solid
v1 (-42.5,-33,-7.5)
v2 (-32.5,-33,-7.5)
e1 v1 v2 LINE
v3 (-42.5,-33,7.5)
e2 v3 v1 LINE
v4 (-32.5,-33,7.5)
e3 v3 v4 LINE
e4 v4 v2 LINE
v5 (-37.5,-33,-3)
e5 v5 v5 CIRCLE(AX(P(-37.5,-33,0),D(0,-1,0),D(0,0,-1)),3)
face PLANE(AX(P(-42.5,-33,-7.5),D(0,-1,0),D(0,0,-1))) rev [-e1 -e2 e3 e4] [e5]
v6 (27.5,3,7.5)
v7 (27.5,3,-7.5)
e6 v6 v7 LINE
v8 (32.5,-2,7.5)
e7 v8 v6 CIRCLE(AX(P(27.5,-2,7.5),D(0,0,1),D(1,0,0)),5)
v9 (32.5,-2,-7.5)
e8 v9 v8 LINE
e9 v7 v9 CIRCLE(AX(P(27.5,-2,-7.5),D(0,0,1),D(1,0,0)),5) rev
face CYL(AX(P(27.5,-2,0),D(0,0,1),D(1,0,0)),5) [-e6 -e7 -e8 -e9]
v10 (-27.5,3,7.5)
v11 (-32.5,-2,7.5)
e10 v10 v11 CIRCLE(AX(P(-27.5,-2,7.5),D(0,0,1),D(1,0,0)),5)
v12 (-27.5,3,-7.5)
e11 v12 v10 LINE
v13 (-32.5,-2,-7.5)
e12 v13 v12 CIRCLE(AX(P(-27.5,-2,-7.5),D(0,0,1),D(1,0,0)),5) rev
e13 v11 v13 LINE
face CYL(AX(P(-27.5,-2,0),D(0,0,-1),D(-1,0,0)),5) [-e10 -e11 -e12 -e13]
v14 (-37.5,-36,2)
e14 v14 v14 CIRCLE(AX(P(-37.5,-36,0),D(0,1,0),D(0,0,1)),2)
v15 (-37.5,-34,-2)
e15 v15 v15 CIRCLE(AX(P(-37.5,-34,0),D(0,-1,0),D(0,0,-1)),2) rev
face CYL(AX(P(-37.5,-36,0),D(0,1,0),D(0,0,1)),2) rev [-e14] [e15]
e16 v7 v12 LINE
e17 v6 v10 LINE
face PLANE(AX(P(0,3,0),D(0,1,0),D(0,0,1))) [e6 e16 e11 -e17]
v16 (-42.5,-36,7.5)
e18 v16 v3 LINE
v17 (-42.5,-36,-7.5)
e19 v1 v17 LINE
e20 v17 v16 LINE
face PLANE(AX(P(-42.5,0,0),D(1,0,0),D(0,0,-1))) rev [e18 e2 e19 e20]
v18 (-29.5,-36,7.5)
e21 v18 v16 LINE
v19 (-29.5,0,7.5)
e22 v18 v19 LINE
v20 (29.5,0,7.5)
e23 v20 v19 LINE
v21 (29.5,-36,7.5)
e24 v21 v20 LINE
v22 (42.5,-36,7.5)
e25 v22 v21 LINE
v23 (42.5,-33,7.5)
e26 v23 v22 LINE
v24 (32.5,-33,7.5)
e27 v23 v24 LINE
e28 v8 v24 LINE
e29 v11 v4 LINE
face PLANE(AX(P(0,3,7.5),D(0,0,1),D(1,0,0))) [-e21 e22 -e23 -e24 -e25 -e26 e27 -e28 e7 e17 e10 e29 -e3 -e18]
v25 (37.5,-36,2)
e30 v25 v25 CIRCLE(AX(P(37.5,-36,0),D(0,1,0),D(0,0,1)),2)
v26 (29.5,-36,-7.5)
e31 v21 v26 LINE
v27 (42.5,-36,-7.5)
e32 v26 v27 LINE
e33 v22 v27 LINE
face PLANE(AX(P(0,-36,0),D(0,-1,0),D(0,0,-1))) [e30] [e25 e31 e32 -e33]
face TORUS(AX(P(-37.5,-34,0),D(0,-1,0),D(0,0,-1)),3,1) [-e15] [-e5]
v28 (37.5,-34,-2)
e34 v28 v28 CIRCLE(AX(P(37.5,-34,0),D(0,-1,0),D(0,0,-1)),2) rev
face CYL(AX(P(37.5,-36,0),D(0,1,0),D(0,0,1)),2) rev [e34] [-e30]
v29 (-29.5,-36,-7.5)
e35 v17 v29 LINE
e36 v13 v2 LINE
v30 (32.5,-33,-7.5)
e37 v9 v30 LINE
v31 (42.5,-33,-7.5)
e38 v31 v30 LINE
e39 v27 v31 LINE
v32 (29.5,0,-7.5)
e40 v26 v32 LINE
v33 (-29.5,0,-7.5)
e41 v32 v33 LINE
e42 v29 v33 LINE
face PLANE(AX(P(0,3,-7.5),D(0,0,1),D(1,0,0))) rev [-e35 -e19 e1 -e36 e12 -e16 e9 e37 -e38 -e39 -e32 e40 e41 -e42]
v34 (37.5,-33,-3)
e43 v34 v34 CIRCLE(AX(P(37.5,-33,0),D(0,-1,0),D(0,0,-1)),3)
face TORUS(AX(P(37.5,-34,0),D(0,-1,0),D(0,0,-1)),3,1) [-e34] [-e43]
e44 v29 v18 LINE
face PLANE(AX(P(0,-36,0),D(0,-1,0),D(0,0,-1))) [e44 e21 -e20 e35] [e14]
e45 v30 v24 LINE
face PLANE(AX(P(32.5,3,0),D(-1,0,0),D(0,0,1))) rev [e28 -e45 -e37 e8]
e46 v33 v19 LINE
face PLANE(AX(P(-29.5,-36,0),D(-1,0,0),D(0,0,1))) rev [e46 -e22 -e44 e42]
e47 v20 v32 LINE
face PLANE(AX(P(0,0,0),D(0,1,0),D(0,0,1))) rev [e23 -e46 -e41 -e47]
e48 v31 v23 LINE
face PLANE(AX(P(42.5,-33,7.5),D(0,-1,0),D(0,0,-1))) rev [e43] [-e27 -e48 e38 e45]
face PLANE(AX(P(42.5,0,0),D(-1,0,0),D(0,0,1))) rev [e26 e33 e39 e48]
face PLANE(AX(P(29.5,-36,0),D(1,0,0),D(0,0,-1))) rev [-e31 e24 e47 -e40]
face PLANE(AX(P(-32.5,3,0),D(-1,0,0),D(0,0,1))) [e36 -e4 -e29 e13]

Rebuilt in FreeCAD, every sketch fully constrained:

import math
import FreeCAD as App
import Part
import Sketcher
from FreeCAD import Vector


def edges_at(feature, points):
    """Names of the edges that pass closest to the given points."""
    edges = feature.Shape.Edges
    near = lambda p: min(range(len(edges)), key=lambda i: edges[i].distToShape(Part.Vertex(*p))[0])
    return sorted({f"Edge{near(p) + 1}" for p in points})

doc = App.newDocument("Part")
body = doc.addObject("PartDesign::Body", "Body")

# Sketch on XZ plane
sketch1 = doc.addObject("Sketcher::SketchObject", "Sketch")
body.addObject(sketch1)
sketch1.AttachmentSupport = (doc.XZ_Plane, [""])
sketch1.MapMode = "FlatFace"
sketch1.addGeometry(Part.LineSegment(Vector(-32, 8, 0), Vector(32, 8, 0)), False)
sketch1.addGeometry(Part.LineSegment(Vector(32, 8, 0), Vector(32, -8, 0)), False)
sketch1.addGeometry(Part.LineSegment(Vector(32, -8, 0), Vector(-32, -8, 0)), False)
sketch1.addGeometry(Part.LineSegment(Vector(-32, -8, 0), Vector(-32, 8, 0)), False)
sketch1.addConstraint(Sketcher.Constraint("Coincident", 0, 2, 1, 1))
sketch1.addConstraint(Sketcher.Constraint("Coincident", 1, 2, 2, 1))
sketch1.addConstraint(Sketcher.Constraint("Coincident", 2, 2, 3, 1))
sketch1.addConstraint(Sketcher.Constraint("Coincident", 3, 2, 0, 1))
sketch1.addConstraint(Sketcher.Constraint("Horizontal", 0))
sketch1.addConstraint(Sketcher.Constraint("Vertical", 1))
sketch1.addConstraint(Sketcher.Constraint("Horizontal", 2))
sketch1.addConstraint(Sketcher.Constraint("Vertical", 3))
sketch1.addConstraint(Sketcher.Constraint("Symmetric", 0, 2, 2, 2, -1, 1))
sketch1.addConstraint(Sketcher.Constraint("DistanceX", 0, 1, 0, 2, 65.0))
sketch1.addConstraint(Sketcher.Constraint("DistanceY", 1, 2, 1, 1, 15.0))
pad1 = doc.addObject("PartDesign::Pad", "Pad")
body.addObject(pad1)
pad1.Profile = sketch1
pad1.Length = 3
pad1.Reversed = True

# Sketch on XZ plane
sketch2 = doc.addObject("Sketcher::SketchObject", "Sketch001")
body.addObject(sketch2)
sketch2.AttachmentSupport = (doc.XZ_Plane, [""])
sketch2.MapMode = "FlatFace"
sketch2.addGeometry(Part.LineSegment(Vector(-29.5, 7.5, 0), Vector(-32.5, 7.5, 0)), False)
sketch2.addGeometry(Part.LineSegment(Vector(-32.5, 7.5, 0), Vector(-32.5, -7.5, 0)), False)
sketch2.addGeometry(Part.LineSegment(Vector(-32.5, -7.5, 0), Vector(-29.5, -7.5, 0)), False)
sketch2.addGeometry(Part.LineSegment(Vector(-29.5, -7.5, 0), Vector(-29.5, 7.5, 0)), False)
sketch2.addGeometry(Part.LineSegment(Vector(29.5, 7.5, 0), Vector(29.5, -7.5, 0)), False)
sketch2.addGeometry(Part.LineSegment(Vector(29.5, -7.5, 0), Vector(32.5, -7.5, 0)), False)
sketch2.addGeometry(Part.LineSegment(Vector(32.5, -7.5, 0), Vector(32.5, 7.5, 0)), False)
sketch2.addGeometry(Part.LineSegment(Vector(32.5, 7.5, 0), Vector(29.5, 7.5, 0)), False)
sketch2.addConstraint(Sketcher.Constraint("Coincident", 0, 2, 1, 1))
sketch2.addConstraint(Sketcher.Constraint("Coincident", 1, 2, 2, 1))
sketch2.addConstraint(Sketcher.Constraint("Coincident", 2, 2, 3, 1))
sketch2.addConstraint(Sketcher.Constraint("Coincident", 3, 2, 0, 1))
sketch2.addConstraint(Sketcher.Constraint("Coincident", 4, 2, 5, 1))
sketch2.addConstraint(Sketcher.Constraint("Coincident", 5, 2, 6, 1))
sketch2.addConstraint(Sketcher.Constraint("Coincident", 6, 2, 7, 1))
sketch2.addConstraint(Sketcher.Constraint("Coincident", 7, 2, 4, 1))
sketch2.addConstraint(Sketcher.Constraint("Horizontal", 0))
sketch2.addConstraint(Sketcher.Constraint("Vertical", 1))
sketch2.addConstraint(Sketcher.Constraint("Horizontal", 2))
sketch2.addConstraint(Sketcher.Constraint("Vertical", 3))
sketch2.addConstraint(Sketcher.Constraint("Vertical", 4))
sketch2.addConstraint(Sketcher.Constraint("Horizontal", 5))
sketch2.addConstraint(Sketcher.Constraint("Vertical", 6))
sketch2.addConstraint(Sketcher.Constraint("Horizontal", 7))
sketch2.addConstraint(Sketcher.Constraint("Symmetric", 3, 2, 4, 2, -1, 1))
sketch2.addConstraint(Sketcher.Constraint("Symmetric", 1, 2, 6, 2, -1, 1))
sketch2.addConstraint(Sketcher.Constraint("Horizontal", 2, 2, 4, 2))
sketch2.addConstraint(Sketcher.Constraint("DistanceX", 0, 2, 0, 1, 3.0))
sketch2.addConstraint(Sketcher.Constraint("DistanceY", 1, 2, 1, 1, 15.0))
sketch2.addConstraint(Sketcher.Constraint("DistanceX", 2, 2, 4, 2, 59.0))
pad2 = doc.addObject("PartDesign::Pad", "Pad001")
body.addObject(pad2)
pad2.Profile = sketch2
pad2.Length = 36

# Sketch on YZ plane
sketch3 = doc.addObject("Sketcher::SketchObject", "Sketch002")
body.addObject(sketch3)
sketch3.AttachmentSupport = (doc.YZ_Plane, [""])
sketch3.MapMode = "FlatFace"
sketch3.AttachmentOffset = App.Placement(Vector(0, 0, 32.5), App.Rotation())
sketch3.addGeometry(Part.LineSegment(Vector(-33, 7.5, 0), Vector(-36, 7.5, 0)), False)
sketch3.addGeometry(Part.LineSegment(Vector(-36, 7.5, 0), Vector(-36, -7.5, 0)), False)
sketch3.addGeometry(Part.LineSegment(Vector(-36, -7.5, 0), Vector(-33, -7.5, 0)), False)
sketch3.addGeometry(Part.LineSegment(Vector(-33, -7.5, 0), Vector(-33, 7.5, 0)), False)
sketch3.addConstraint(Sketcher.Constraint("Coincident", 0, 2, 1, 1))
sketch3.addConstraint(Sketcher.Constraint("Coincident", 1, 2, 2, 1))
sketch3.addConstraint(Sketcher.Constraint("Coincident", 2, 2, 3, 1))
sketch3.addConstraint(Sketcher.Constraint("Coincident", 3, 2, 0, 1))
sketch3.addConstraint(Sketcher.Constraint("Horizontal", 0))
sketch3.addConstraint(Sketcher.Constraint("Vertical", 1))
sketch3.addConstraint(Sketcher.Constraint("Horizontal", 2))
sketch3.addConstraint(Sketcher.Constraint("Vertical", 3))
sketch3.addConstraint(Sketcher.Constraint("DistanceX", 0, 2, 0, 1, 3.0))
sketch3.addConstraint(Sketcher.Constraint("DistanceY", 1, 2, 1, 1, 15.0))
sketch3.addConstraint(Sketcher.Constraint("DistanceX", 0, 2, -1, 1, 36.0))
sketch3.addConstraint(Sketcher.Constraint("DistanceY", -1, 1, 0, 2, 7.5))
pad3 = doc.addObject("PartDesign::Pad", "Pad002")
body.addObject(pad3)
pad3.Profile = sketch3
pad3.Length = 10

# Sketch on YZ plane
sketch4 = doc.addObject("Sketcher::SketchObject", "Sketch003")
body.addObject(sketch4)
sketch4.AttachmentSupport = (doc.YZ_Plane, [""])
sketch4.MapMode = "FlatFace"
sketch4.AttachmentOffset = App.Placement(Vector(0, 0, -32.5), App.Rotation())
sketch4.addGeometry(Part.LineSegment(Vector(-33, -7.5, 0), Vector(-36, -7.5, 0)), False)
sketch4.addGeometry(Part.LineSegment(Vector(-36, -7.5, 0), Vector(-36, 7.5, 0)), False)
sketch4.addGeometry(Part.LineSegment(Vector(-36, 7.5, 0), Vector(-33, 7.5, 0)), False)
sketch4.addGeometry(Part.LineSegment(Vector(-33, 7.5, 0), Vector(-33, -7.5, 0)), False)
sketch4.addConstraint(Sketcher.Constraint("Coincident", 0, 2, 1, 1))
sketch4.addConstraint(Sketcher.Constraint("Coincident", 1, 2, 2, 1))
sketch4.addConstraint(Sketcher.Constraint("Coincident", 2, 2, 3, 1))
sketch4.addConstraint(Sketcher.Constraint("Coincident", 3, 2, 0, 1))
sketch4.addConstraint(Sketcher.Constraint("Horizontal", 0))
sketch4.addConstraint(Sketcher.Constraint("Vertical", 1))
sketch4.addConstraint(Sketcher.Constraint("Horizontal", 2))
sketch4.addConstraint(Sketcher.Constraint("Vertical", 3))
sketch4.addConstraint(Sketcher.Constraint("DistanceX", 0, 2, 0, 1, 3.0))
sketch4.addConstraint(Sketcher.Constraint("DistanceY", 1, 1, 1, 2, 15.0))
sketch4.addConstraint(Sketcher.Constraint("DistanceX", 0, 2, -1, 1, 36.0))
sketch4.addConstraint(Sketcher.Constraint("DistanceY", 0, 2, -1, 1, 7.5))
pad4 = doc.addObject("PartDesign::Pad", "Pad003")
body.addObject(pad4)
pad4.Profile = sketch4
pad4.Length = 10
pad4.Reversed = True

# Sketch on XZ plane
sketch5 = doc.addObject("Sketcher::SketchObject", "Sketch004")
body.addObject(sketch5)
sketch5.AttachmentSupport = (doc.XZ_Plane, [""])
sketch5.MapMode = "FlatFace"
sketch5.AttachmentOffset = App.Placement(Vector(0, 0, 33), App.Rotation())
sketch5.addGeometry(Part.ArcOfCircle(Part.Circle(Vector(-37.5, 0, 0), Vector(0, 0, 1), 2), math.radians(-124), math.radians(0)), False)
sketch5.addGeometry(Part.ArcOfCircle(Part.Circle(Vector(-37.5, 0, 0), Vector(0, 0, 1), 2), math.radians(56), math.radians(236)), False)
sketch5.addGeometry(Part.ArcOfCircle(Part.Circle(Vector(-37.5, 0, 0), Vector(0, 0, 1), 2), math.radians(0), math.radians(56)), False)
sketch5.addGeometry(Part.ArcOfCircle(Part.Circle(Vector(37.5, 0, 0), Vector(0, 0, 1), 2), math.radians(56), math.radians(236)), False)
sketch5.addGeometry(Part.ArcOfCircle(Part.Circle(Vector(37.5, 0, 0), Vector(0, 0, 1), 2), math.radians(0), math.radians(56)), False)
sketch5.addGeometry(Part.ArcOfCircle(Part.Circle(Vector(37.5, 0, 0), Vector(0, 0, 1), 2), math.radians(-124), math.radians(0)), False)
sketch5.addConstraint(Sketcher.Constraint("Tangent", 0, 1, 1, 2))
sketch5.addConstraint(Sketcher.Constraint("Tangent", 1, 1, 2, 2))
sketch5.addConstraint(Sketcher.Constraint("Tangent", 2, 1, 0, 2))
sketch5.addConstraint(Sketcher.Constraint("Tangent", 3, 1, 4, 2))
sketch5.addConstraint(Sketcher.Constraint("Tangent", 4, 1, 5, 2))
sketch5.addConstraint(Sketcher.Constraint("Tangent", 5, 1, 3, 2))
sketch5.addConstraint(Sketcher.Constraint("Equal", 2, 3))
sketch5.addConstraint(Sketcher.Constraint("Symmetric", 0, 3, 3, 3, -1, 1))
sketch5.addConstraint(Sketcher.Constraint("PointOnObject", 0, 3, -1))
sketch5.addConstraint(Sketcher.Constraint("PointOnObject", 2, 1, -1))
sketch5.addConstraint(Sketcher.Constraint("PointOnObject", 4, 1, -1))
sketch5.addConstraint(Sketcher.Constraint("Horizontal", 1, 1, 3, 1))
sketch5.addConstraint(Sketcher.Constraint("Horizontal", 0, 1, 5, 1))
sketch5.addConstraint(Sketcher.Constraint("Radius", 0, 2.0))
sketch5.addConstraint(Sketcher.Constraint("DistanceX", 2, 3, 3, 3, 75.0))
sketch5.addConstraint(Sketcher.Constraint("DistanceX", 0, 1, -1, 1, 38.6094))
sketch5.addConstraint(Sketcher.Constraint("DistanceX", 1, 1, -1, 1, 36.3906))
pocket1 = doc.addObject("PartDesign::Pocket", "Pocket")
body.addObject(pocket1)
pocket1.Profile = sketch5
pocket1.Length = 3
pocket1.Reversed = True
doc.recompute()

fillet = doc.addObject("PartDesign::Fillet", "Fillet")
body.addObject(fillet)
fillet.Base = (pocket1, edges_at(pocket1, [(32.5, 3, 0), (-32.5, 3, 0)]))
fillet.Radius = 5
doc.recompute()

fillet2 = doc.addObject("PartDesign::Fillet", "Fillet001")
body.addObject(fillet2)
fillet2.Base = (fillet, edges_at(fillet, [(-36.556, -33, -1.763), (35.836, -33, 1.109)]))
fillet2.Radius = 1

doc.recompute()
